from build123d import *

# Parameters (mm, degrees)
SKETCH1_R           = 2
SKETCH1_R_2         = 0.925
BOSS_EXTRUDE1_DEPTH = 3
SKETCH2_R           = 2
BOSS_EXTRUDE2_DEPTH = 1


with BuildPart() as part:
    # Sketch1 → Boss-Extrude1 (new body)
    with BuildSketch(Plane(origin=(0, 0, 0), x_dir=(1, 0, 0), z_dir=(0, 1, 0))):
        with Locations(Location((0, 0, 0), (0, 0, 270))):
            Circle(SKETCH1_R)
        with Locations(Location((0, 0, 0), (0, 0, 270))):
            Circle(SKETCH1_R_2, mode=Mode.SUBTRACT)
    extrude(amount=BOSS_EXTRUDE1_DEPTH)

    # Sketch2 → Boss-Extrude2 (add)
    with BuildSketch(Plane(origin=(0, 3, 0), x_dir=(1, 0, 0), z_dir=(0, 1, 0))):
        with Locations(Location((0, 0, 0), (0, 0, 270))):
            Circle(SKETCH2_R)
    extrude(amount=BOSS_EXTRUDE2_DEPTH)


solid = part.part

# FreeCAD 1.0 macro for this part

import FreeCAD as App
import Part
import Sketcher
Q = App.Units.Quantity

doc = App.newDocument("Part")
params = doc.addObject("Spreadsheet::Sheet", "Params")
for row, (alias, value) in enumerate([
    ("sketch1_diameter", "4 mm"),
    ("sketch1_diameter2", "1.85 mm"),
    ("pad1_length", "3 mm"),
    ("sketch2_diameter", "4 mm"),
    ("pad2_length", "1 mm"),
], start=1):
    params.set(f"A{row}", alias)
    params.set(f"B{row}", "=" + value)
    params.setAlias(f"B{row}", alias)

body = doc.addObject("PartDesign::Body", "Body")

# Sketch on XZ plane
sketch1 = doc.addObject("Sketcher::SketchObject", "Sketch")
body.addObject(sketch1)
sketch1.AttachmentSupport = (doc.XZ_Plane, [""])
sketch1.MapMode = "FlatFace"
sketch1.addGeometry(Part.Circle(App.Vector(0, 0, 0), App.Vector(0, 0, 1), 2), False)
sketch1.addGeometry(Part.Circle(App.Vector(0, 0, 0), App.Vector(0, 0, 1), 0.925), False)
sketch1.addConstraint(Sketcher.Constraint("Coincident", 0, 3, -1, 1))
sketch1.addConstraint(Sketcher.Constraint("Coincident", 1, 3, -1, 1))
sketch1.addConstraint(Sketcher.Constraint("Diameter", 0, Q("4 mm")))
sketch1.addConstraint(Sketcher.Constraint("Diameter", 1, Q("1.85 mm")))
sketch1.setExpression("Constraints[2]", "Params.sketch1_diameter")
sketch1.setExpression("Constraints[3]", "Params.sketch1_diameter2")
pad1 = doc.addObject("PartDesign::Pad", "Pad")
body.addObject(pad1)
pad1.Profile = sketch1
pad1.setExpression("Length", "Params.pad1_length")
pad1.Reversed = True

# Sketch on XZ plane
sketch2 = doc.addObject("Sketcher::SketchObject", "Sketch001")
body.addObject(sketch2)
sketch2.AttachmentSupport = (doc.XZ_Plane, [""])
sketch2.MapMode = "FlatFace"
sketch2.AttachmentOffset = App.Placement(App.Vector(0, 0, -3), App.Rotation())
sketch2.addGeometry(Part.Circle(App.Vector(0, 0, 0), App.Vector(0, 0, 1), 2), False)
sketch2.addConstraint(Sketcher.Constraint("Coincident", 0, 3, -1, 1))
sketch2.addConstraint(Sketcher.Constraint("Diameter", 0, Q("4 mm")))
sketch2.setExpression("Constraints[1]", "Params.sketch2_diameter")
pad2 = doc.addObject("PartDesign::Pad", "Pad001")
body.addObject(pad2)
pad2.Profile = sketch2
pad2.setExpression("Length", "Params.pad2_length")
pad2.Reversed = True

doc.recompute()
